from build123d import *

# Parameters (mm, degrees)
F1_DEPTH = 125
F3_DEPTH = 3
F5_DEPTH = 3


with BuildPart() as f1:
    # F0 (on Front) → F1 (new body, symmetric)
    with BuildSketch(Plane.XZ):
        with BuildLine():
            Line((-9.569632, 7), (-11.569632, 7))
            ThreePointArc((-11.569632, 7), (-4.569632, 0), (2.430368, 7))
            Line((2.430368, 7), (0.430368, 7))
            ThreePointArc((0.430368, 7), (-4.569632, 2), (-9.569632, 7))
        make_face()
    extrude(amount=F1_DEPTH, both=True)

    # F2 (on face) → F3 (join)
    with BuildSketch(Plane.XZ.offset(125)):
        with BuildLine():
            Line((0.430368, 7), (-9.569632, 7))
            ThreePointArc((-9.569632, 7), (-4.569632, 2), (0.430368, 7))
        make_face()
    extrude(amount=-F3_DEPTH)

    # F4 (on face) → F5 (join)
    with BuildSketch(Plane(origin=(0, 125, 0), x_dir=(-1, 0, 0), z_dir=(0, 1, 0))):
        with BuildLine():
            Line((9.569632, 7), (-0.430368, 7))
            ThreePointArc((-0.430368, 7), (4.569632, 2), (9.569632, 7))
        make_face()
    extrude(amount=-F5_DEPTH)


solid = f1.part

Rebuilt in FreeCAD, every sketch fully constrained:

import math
import FreeCAD as App
import Part
import Sketcher

doc = App.newDocument("Part")
body = doc.addObject("PartDesign::Body", "Body")

# Sketch on XZ plane
sketch1 = body.newObject("Sketcher::SketchObject", "Sketch")
sketch1.AttachmentSupport = (doc.getObject("XZ_Plane"), [""])
sketch1.MapMode = "FlatFace"
sketch1.addGeometry(Part.LineSegment(App.Vector(-9.6, 7, 0), App.Vector(-11.6, 7, 0)), False)
sketch1.addGeometry(Part.ArcOfCircle(Part.Circle(App.Vector(-4.6, 7, 0), App.Vector(0, 0, 1), 7), math.radians(180), math.radians(360)), False)
sketch1.addGeometry(Part.LineSegment(App.Vector(2.4, 7, 0), App.Vector(0.4, 7, 0)), False)
sketch1.addGeometry(Part.ArcOfCircle(Part.Circle(App.Vector(-4.6, 7, 0), App.Vector(0, 0, 1), 5), math.radians(180), math.radians(360)), False)
sketch1.addConstraint(Sketcher.Constraint("Coincident", 0, 2, 1, 1))
sketch1.addConstraint(Sketcher.Constraint("Coincident", 1, 2, 2, 1))
sketch1.addConstraint(Sketcher.Constraint("Coincident", 2, 2, 3, 2))
sketch1.addConstraint(Sketcher.Constraint("Coincident", 3, 1, 0, 1))
sketch1.addConstraint(Sketcher.Constraint("Horizontal", 0))
sketch1.addConstraint(Sketcher.Constraint("Horizontal", 2))
sketch1.addConstraint(Sketcher.Constraint("Coincident", 3, 3, 1, 3))
sketch1.addConstraint(Sketcher.Constraint("Horizontal", 3, 3, 0, 2))
sketch1.addConstraint(Sketcher.Constraint("Horizontal", 0, 2, 1, 2))
sketch1.addConstraint(Sketcher.Constraint("Radius", 1, 7.0))
sketch1.addConstraint(Sketcher.Constraint("Radius", 3, 5.0))
sketch1.addConstraint(Sketcher.Constraint("DistanceY", -1, 1, 1, 3, 7.0))
sketch1.addConstraint(Sketcher.Constraint("DistanceX", 1, 3, -1, 1, 4.569632))
pad1 = body.newObject("PartDesign::Pad", "Pad")
pad1.Profile = sketch1
pad1.Length = 250
pad1.Midplane = True

# Sketch on XZ plane
sketch2 = body.newObject("Sketcher::SketchObject", "Sketch001")
sketch2.AttachmentSupport = (doc.getObject("XZ_Plane"), [""])
sketch2.MapMode = "FlatFace"
sketch2.AttachmentOffset = App.Placement(App.Vector(0, 0, 125), App.Rotation())
sketch2.addGeometry(Part.LineSegment(App.Vector(0, 7, 0), App.Vector(-10, 7, 0)), False)
sketch2.addGeometry(Part.ArcOfCircle(Part.Circle(App.Vector(-5, 7, 0), App.Vector(0, 0, 1), 5), math.radians(180), math.radians(360)), False)
sketch2.addConstraint(Sketcher.Constraint("Coincident", 0, 1, 1, 2))
sketch2.addConstraint(Sketcher.Constraint("Coincident", 1, 1, 0, 2))
sketch2.addConstraint(Sketcher.Constraint("Horizontal", 0))
sketch2.addConstraint(Sketcher.Constraint("Horizontal", 1, 3, 0, 1))
sketch2.addConstraint(Sketcher.Constraint("Radius", 1, 5.0))
sketch2.addConstraint(Sketcher.Constraint("DistanceY", -1, 1, 1, 3, 7.0))
sketch2.addConstraint(Sketcher.Constraint("DistanceX", 1, 3, -1, 1, 4.569632))
pad2 = body.newObject("PartDesign::Pad", "Pad001")
pad2.Profile = sketch2
pad2.Length = 3
pad2.Reversed = True

# Sketch on XZ plane
sketch3 = body.newObject("Sketcher::SketchObject", "Sketch002")
sketch3.AttachmentSupport = (doc.getObject("XZ_Plane"), [""])
sketch3.MapMode = "FlatFace"
sketch3.AttachmentOffset = App.Placement(App.Vector(0, 0, -125), App.Rotation())
sketch3.addGeometry(Part.LineSegment(App.Vector(-10, 7, 0), App.Vector(0, 7, 0)), False)
sketch3.addGeometry(Part.ArcOfCircle(Part.Circle(App.Vector(-5, 7, 0), App.Vector(0, 0, 1), 5), math.radians(180), math.radians(360)), False)
sketch3.addConstraint(Sketcher.Constraint("Coincident", 0, 1, 1, 1))
sketch3.addConstraint(Sketcher.Constraint("Coincident", 1, 2, 0, 2))
sketch3.addConstraint(Sketcher.Constraint("Horizontal", 0))
sketch3.addConstraint(Sketcher.Constraint("Horizontal", 1, 3, 0, 1))
sketch3.addConstraint(Sketcher.Constraint("Radius", 1, 5.0))
sketch3.addConstraint(Sketcher.Constraint("DistanceY", -1, 1, 1, 3, 7.0))
sketch3.addConstraint(Sketcher.Constraint("DistanceX", 1, 3, -1, 1, 4.569632))
pad3 = body.newObject("PartDesign::Pad", "Pad002")
pad3.Profile = sketch3
pad3.Length = 3

doc.recompute()
